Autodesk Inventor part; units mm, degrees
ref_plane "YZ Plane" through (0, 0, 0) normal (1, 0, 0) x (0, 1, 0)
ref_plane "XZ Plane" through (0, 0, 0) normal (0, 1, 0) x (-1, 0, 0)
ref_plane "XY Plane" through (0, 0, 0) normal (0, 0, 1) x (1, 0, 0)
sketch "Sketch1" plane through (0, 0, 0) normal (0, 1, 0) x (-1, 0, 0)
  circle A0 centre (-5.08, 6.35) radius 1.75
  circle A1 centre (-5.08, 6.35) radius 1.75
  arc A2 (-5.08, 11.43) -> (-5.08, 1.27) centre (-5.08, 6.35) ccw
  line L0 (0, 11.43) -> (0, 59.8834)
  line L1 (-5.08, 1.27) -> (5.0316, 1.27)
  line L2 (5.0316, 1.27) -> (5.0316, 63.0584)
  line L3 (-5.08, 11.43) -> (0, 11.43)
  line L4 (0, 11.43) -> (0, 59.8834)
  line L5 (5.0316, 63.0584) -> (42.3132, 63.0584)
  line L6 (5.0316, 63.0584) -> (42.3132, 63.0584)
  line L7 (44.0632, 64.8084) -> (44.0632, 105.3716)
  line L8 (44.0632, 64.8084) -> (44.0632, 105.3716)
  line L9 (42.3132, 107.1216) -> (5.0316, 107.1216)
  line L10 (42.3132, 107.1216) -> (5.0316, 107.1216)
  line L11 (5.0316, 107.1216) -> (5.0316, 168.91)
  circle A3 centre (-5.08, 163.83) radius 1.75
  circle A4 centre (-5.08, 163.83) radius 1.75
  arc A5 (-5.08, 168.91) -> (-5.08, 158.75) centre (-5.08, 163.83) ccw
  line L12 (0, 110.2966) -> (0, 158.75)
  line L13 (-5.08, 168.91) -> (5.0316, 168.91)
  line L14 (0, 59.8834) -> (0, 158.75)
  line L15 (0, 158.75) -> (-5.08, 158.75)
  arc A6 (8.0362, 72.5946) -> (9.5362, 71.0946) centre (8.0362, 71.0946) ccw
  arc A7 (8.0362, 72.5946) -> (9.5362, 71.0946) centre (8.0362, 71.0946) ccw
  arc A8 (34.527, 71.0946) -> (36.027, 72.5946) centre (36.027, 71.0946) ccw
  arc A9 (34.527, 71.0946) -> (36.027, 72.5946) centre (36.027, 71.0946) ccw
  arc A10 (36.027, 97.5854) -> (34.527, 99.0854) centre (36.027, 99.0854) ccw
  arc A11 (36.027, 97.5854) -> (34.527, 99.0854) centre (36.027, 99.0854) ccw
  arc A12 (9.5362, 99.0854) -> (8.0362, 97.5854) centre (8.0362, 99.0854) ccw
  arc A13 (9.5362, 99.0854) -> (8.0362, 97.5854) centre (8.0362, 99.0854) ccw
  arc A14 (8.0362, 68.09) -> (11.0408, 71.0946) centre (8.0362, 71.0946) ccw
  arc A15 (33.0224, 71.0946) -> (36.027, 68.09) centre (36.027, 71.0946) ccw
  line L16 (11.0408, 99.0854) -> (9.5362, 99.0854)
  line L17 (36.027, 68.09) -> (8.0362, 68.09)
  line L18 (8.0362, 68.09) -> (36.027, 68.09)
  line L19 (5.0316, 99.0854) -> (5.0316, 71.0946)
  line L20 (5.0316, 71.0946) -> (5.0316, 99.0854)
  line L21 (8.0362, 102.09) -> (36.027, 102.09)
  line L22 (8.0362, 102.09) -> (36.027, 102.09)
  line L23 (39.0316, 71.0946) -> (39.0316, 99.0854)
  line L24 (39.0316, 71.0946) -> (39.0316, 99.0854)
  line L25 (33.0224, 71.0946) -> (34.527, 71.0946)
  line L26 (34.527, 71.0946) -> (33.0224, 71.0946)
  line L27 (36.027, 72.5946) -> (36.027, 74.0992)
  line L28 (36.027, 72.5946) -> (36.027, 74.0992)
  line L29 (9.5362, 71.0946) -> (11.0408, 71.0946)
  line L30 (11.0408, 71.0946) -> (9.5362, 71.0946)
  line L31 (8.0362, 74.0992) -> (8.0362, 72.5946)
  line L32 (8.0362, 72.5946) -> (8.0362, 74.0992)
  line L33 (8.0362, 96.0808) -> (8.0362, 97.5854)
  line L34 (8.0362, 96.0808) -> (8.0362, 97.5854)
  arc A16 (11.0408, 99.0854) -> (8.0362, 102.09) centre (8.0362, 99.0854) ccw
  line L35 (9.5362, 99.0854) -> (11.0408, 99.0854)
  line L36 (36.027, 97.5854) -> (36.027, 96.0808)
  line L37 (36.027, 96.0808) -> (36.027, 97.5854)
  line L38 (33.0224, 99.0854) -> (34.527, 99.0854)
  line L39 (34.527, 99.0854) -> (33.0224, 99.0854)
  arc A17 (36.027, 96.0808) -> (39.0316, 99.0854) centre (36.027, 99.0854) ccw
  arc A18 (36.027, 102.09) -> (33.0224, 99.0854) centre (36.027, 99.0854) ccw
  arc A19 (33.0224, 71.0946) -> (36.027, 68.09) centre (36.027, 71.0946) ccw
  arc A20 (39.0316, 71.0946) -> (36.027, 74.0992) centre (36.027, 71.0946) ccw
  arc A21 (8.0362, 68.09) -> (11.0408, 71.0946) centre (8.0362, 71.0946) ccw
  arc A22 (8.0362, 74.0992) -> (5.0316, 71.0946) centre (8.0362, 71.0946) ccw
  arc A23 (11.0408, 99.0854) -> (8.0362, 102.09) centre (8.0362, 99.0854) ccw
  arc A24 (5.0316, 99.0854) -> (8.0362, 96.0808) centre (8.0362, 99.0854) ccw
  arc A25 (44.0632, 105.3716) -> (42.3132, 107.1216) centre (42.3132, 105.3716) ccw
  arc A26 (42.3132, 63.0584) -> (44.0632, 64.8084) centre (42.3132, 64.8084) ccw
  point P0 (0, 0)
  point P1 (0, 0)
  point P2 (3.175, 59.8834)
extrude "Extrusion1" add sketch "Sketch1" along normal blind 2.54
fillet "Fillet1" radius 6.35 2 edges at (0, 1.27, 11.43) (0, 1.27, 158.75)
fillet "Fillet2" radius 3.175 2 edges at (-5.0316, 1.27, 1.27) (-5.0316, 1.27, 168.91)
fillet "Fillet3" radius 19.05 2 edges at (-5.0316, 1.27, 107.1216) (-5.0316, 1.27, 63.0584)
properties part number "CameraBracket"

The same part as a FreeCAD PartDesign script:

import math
import FreeCAD as App
import Part
import Sketcher

V = App.Vector
Q = App.Units.Quantity


def edges_at(feature, points):
    """Names of the edges that pass closest to the given points."""
    edges = feature.Shape.Edges
    near = lambda p: min(range(len(edges)), key=lambda i: edges[i].distToShape(Part.Vertex(*p))[0])
    return sorted({f"Edge{near(p) + 1}" for p in points})

doc = App.newDocument("Part")
body = doc.addObject("PartDesign::Body", "Body")

# Sketch on XZ plane
sketch1 = doc.addObject("Sketcher::SketchObject", "Sketch")
body.addObject(sketch1)
sketch1.AttachmentSupport = (doc.XZ_Plane, [""])
sketch1.MapMode = "FlatFace"
sketch1.addGeometry([
    Part.LineSegment(V(0, 11.4, 0), V(5.1, 11.4, 0)),  # 0
    Part.ArcOfCircle(Part.Circle(V(5.1, 6.3, 0), V(0, 0, 1), 5.1), math.radians(-90), math.radians(90)),  # 1
    Part.LineSegment(V(5.1, 1.3, 0), V(-5, 1.3, 0)),  # 2
    Part.LineSegment(V(-5, 1.3, 0), V(-5, 63.1, 0)),  # 3
    Part.LineSegment(V(-5, 63.1, 0), V(-42.3, 63.1, 0)),  # 4
    Part.ArcOfCircle(Part.Circle(V(-42.3, 64.8, 0), V(0, 0, 1), 1.8), math.radians(180), math.radians(270)),  # 5
    Part.LineSegment(V(-44.1, 64.8, 0), V(-44.1, 105.4, 0)),  # 6
    Part.ArcOfCircle(Part.Circle(V(-42.3, 105.4, 0), V(0, 0, 1), 1.8), math.radians(90), math.radians(180)),  # 7
    Part.LineSegment(V(-42.3, 107.1, 0), V(-5, 107.1, 0)),  # 8
    Part.LineSegment(V(-5, 107.1, 0), V(-5, 168.9, 0)),  # 9
    Part.LineSegment(V(-5, 168.9, 0), V(5.1, 168.9, 0)),  # 10
    Part.ArcOfCircle(Part.Circle(V(5.1, 163.8, 0), V(0, 0, 1), 5.1), math.radians(-90), math.radians(90)),  # 11
    Part.LineSegment(V(5.1, 158.8, 0), V(0, 158.8, 0)),  # 12
    Part.LineSegment(V(0, 158.8, 0), V(0, 11.4, 0)),  # 13
    Part.Circle(V(5.1, 6.3, 0), V(0, 0, 1), 1.8),  # 14
    Part.Circle(V(5.1, 163.8, 0), V(0, 0, 1), 1.8),  # 15
    Part.ArcOfCircle(Part.Circle(V(-8, 71.1, 0), V(0, 0, 1), 1.5), math.radians(180), math.radians(450)),  # 16
    Part.LineSegment(V(-8, 72.6, 0), V(-8, 74.1, 0)),  # 17
    Part.ArcOfCircle(Part.Circle(V(-8, 71.1, 0), V(0, 0, 1), 3), math.radians(0), math.radians(90)),  # 18
    Part.LineSegment(V(-5, 71.1, 0), V(-5, 99.1, 0)),  # 19
    Part.ArcOfCircle(Part.Circle(V(-8, 99.1, 0), V(0, 0, 1), 3), math.radians(-90), math.radians(0)),  # 20
    Part.LineSegment(V(-8, 96.1, 0), V(-8, 97.6, 0)),  # 21
    Part.ArcOfCircle(Part.Circle(V(-8, 99.1, 0), V(0, 0, 1), 1.5), math.radians(-90), math.radians(180)),  # 22
    Part.LineSegment(V(-9.5, 99.1, 0), V(-11, 99.1, 0)),  # 23
    Part.ArcOfCircle(Part.Circle(V(-8, 99.1, 0), V(0, 0, 1), 3), math.radians(90), math.radians(180)),  # 24
    Part.LineSegment(V(-8, 102.1, 0), V(-36, 102.1, 0)),  # 25
    Part.ArcOfCircle(Part.Circle(V(-36, 99.1, 0), V(0, 0, 1), 3), math.radians(0), math.radians(90)),  # 26
    Part.LineSegment(V(-33, 99.1, 0), V(-34.5, 99.1, 0)),  # 27
    Part.ArcOfCircle(Part.Circle(V(-36, 99.1, 0), V(0, 0, 1), 1.5), math.radians(0), math.radians(270)),  # 28
    Part.LineSegment(V(-36, 97.6, 0), V(-36, 96.1, 0)),  # 29
    Part.ArcOfCircle(Part.Circle(V(-36, 99.1, 0), V(0, 0, 1), 3), math.radians(180), math.radians(270)),  # 30
    Part.LineSegment(V(-39, 99.1, 0), V(-39, 71.1, 0)),  # 31
    Part.ArcOfCircle(Part.Circle(V(-36, 71.1, 0), V(0, 0, 1), 3), math.radians(90), math.radians(180)),  # 32
    Part.LineSegment(V(-36, 74.1, 0), V(-36, 72.6, 0)),  # 33
    Part.ArcOfCircle(Part.Circle(V(-36, 71.1, 0), V(0, 0, 1), 1.5), math.radians(90), math.radians(360)),  # 34
    Part.LineSegment(V(-34.5, 71.1, 0), V(-33, 71.1, 0)),  # 35
    Part.ArcOfCircle(Part.Circle(V(-36, 71.1, 0), V(0, 0, 1), 3), math.radians(-90), math.radians(0)),  # 36
    Part.LineSegment(V(-36, 68.1, 0), V(-8, 68.1, 0)),  # 37
    Part.ArcOfCircle(Part.Circle(V(-8, 71.1, 0), V(0, 0, 1), 3), math.radians(180), math.radians(270)),  # 38
    Part.LineSegment(V(-11, 71.1, 0), V(-9.5, 71.1, 0)),  # 39
], False)
sketch1.addConstraint([
    Sketcher.Constraint("Tangent", 0, 2, 1, 2),
    Sketcher.Constraint("Tangent", 1, 1, 2, 1),
    Sketcher.Constraint("Coincident", 2, 2, 3, 1),
    Sketcher.Constraint("Coincident", 3, 2, 4, 1),
    Sketcher.Constraint("Tangent", 4, 2, 5, 2),
    Sketcher.Constraint("Tangent", 5, 1, 6, 1),
    Sketcher.Constraint("Tangent", 6, 2, 7, 2),
    Sketcher.Constraint("Tangent", 7, 1, 8, 1),
    Sketcher.Constraint("Coincident", 8, 2, 9, 1),
    Sketcher.Constraint("Coincident", 9, 2, 10, 1),
    Sketcher.Constraint("Tangent", 10, 2, 11, 2),
    Sketcher.Constraint("Tangent", 11, 1, 12, 1),
    Sketcher.Constraint("Coincident", 12, 2, 13, 1),
    Sketcher.Constraint("Coincident", 13, 2, 0, 1),
    Sketcher.Constraint("Coincident", 16, 2, 17, 1),
    Sketcher.Constraint("Coincident", 17, 2, 18, 2),
    Sketcher.Constraint("Tangent", 18, 1, 19, 1),
    Sketcher.Constraint("Tangent", 19, 2, 20, 2),
    Sketcher.Constraint("Coincident", 20, 1, 21, 1),
    Sketcher.Constraint("Coincident", 21, 2, 22, 1),
    Sketcher.Constraint("Coincident", 22, 2, 23, 1),
    Sketcher.Constraint("Coincident", 23, 2, 24, 2),
    Sketcher.Constraint("Tangent", 24, 1, 25, 1),
    Sketcher.Constraint("Tangent", 25, 2, 26, 2),
    Sketcher.Constraint("Coincident", 26, 1, 27, 1),
    Sketcher.Constraint("Coincident", 27, 2, 28, 1),
    Sketcher.Constraint("Coincident", 28, 2, 29, 1),
    Sketcher.Constraint("Coincident", 29, 2, 30, 2),
    Sketcher.Constraint("Tangent", 30, 1, 31, 1),
    Sketcher.Constraint("Tangent", 31, 2, 32, 2),
    Sketcher.Constraint("Coincident", 32, 1, 33, 1),
    Sketcher.Constraint("Coincident", 33, 2, 34, 1),
    Sketcher.Constraint("Coincident", 34, 2, 35, 1),
    Sketcher.Constraint("Coincident", 35, 2, 36, 2),
    Sketcher.Constraint("Tangent", 36, 1, 37, 1),
    Sketcher.Constraint("Tangent", 37, 2, 38, 2),
    Sketcher.Constraint("Coincident", 38, 1, 39, 1),
    Sketcher.Constraint("Coincident", 39, 2, 16, 1),
    Sketcher.Constraint("Horizontal", 0),
    Sketcher.Constraint("Horizontal", 2),
    Sketcher.Constraint("Vertical", 3),
    Sketcher.Constraint("Horizontal", 4),
    Sketcher.Constraint("Vertical", 6),
    Sketcher.Constraint("Horizontal", 8),
    Sketcher.Constraint("Vertical", 9),
    Sketcher.Constraint("Horizontal", 10),
    Sketcher.Constraint("Horizontal", 12),
    Sketcher.Constraint("Vertical", 13),
    Sketcher.Constraint("Vertical", 17),
    Sketcher.Constraint("Vertical", 19),
    Sketcher.Constraint("Vertical", 21),
    Sketcher.Constraint("Horizontal", 23),
    Sketcher.Constraint("Horizontal", 25),
    Sketcher.Constraint("Horizontal", 27),
    Sketcher.Constraint("Vertical", 29),
    Sketcher.Constraint("Vertical", 31),
    Sketcher.Constraint("Vertical", 33),
    Sketcher.Constraint("Horizontal", 35),
    Sketcher.Constraint("Horizontal", 37),
    Sketcher.Constraint("Horizontal", 39),
    Sketcher.Constraint("Coincident", 14, 3, 1, 3),
    Sketcher.Constraint("Coincident", 15, 3, 11, 3),
    Sketcher.Constraint("Coincident", 18, 3, 16, 3),
    Sketcher.Constraint("Coincident", 22, 3, 20, 3),
    Sketcher.Constraint("Coincident", 24, 3, 20, 3),
    Sketcher.Constraint("Coincident", 28, 3, 26, 3),
    Sketcher.Constraint("Coincident", 30, 3, 26, 3),
    Sketcher.Constraint("Coincident", 34, 3, 32, 3),
    Sketcher.Constraint("Coincident", 36, 3, 32, 3),
    Sketcher.Constraint("Coincident", 38, 3, 16, 3),
    Sketcher.Constraint("Equal", 5, 7),
    Sketcher.Constraint("Equal", 1, 11),
    Sketcher.Constraint("Equal", 7, 14),
    Sketcher.Constraint("Equal", 14, 15),
    Sketcher.Constraint("Equal", 18, 20),
    Sketcher.Constraint("Equal", 16, 22),
    Sketcher.Constraint("Equal", 20, 24),
    Sketcher.Constraint("Equal", 24, 26),
    Sketcher.Constraint("Equal", 22, 28),
    Sketcher.Constraint("Equal", 26, 30),
    Sketcher.Constraint("Equal", 30, 32),
    Sketcher.Constraint("Equal", 28, 34),
    Sketcher.Constraint("Equal", 32, 36),
    Sketcher.Constraint("Equal", 36, 38),
    Sketcher.Constraint("PointOnObject", 12, 2, -2),
    Sketcher.Constraint("Horizontal", 19, 2, 22, 2),
    Sketcher.Constraint("Horizontal", 23, 2, 26, 1),
    Sketcher.Constraint("Horizontal", 31, 2, 34, 2),
    Sketcher.Constraint("Horizontal", 35, 2, 38, 1),
    Sketcher.Constraint("Vertical", 1, 3, 11, 3),
    Sketcher.Constraint("Vertical", 3, 2, 8, 2),
    Sketcher.Constraint("Vertical", 38, 3, 16, 2),
    Sketcher.Constraint("Vertical", 9, 2, 18, 1),
    Sketcher.Constraint("Vertical", 17, 2, 20, 1),
    Sketcher.Constraint("Vertical", 25, 2, 28, 2),
    Sketcher.Constraint("Vertical", 29, 2, 32, 1),
    Sketcher.Constraint("Equal", 3, 9),
    Sketcher.Constraint("Equal", 37, 19),
    Sketcher.Constraint("Radius", 1, Q("0.2 in")),
    Sketcher.Constraint("DistanceX", 0, 1, 0, 2, Q("0.2 in")),
    Sketcher.Constraint("DistanceY", 13, 2, 13, 1, Q("5.8 in")),
    Sketcher.Constraint("Diameter", 14, Q("0.1378 in")),
    Sketcher.Constraint("Radius", 18, Q("0.1183 in")),
    Sketcher.Constraint("DistanceX", 25, 2, 25, 1, Q("1.102 in")),
    Sketcher.Constraint("DistanceY", -1, 1, 1, 3, Q("0.25 in")),
    Sketcher.Constraint("Radius", 16, 1.5),
    Sketcher.Constraint("DistanceX", 2, 2, 2, 1, Q("0.3981 in")),
    Sketcher.Constraint("DistanceY", -1, 1, 16, 3, Q("2.799 in")),
    Sketcher.Constraint("DistanceX", 4, 2, 4, 1, 37.2816),
    Sketcher.Constraint("DistanceY", 3, 1, 3, 2, 61.7884),
])
pad1 = doc.addObject("PartDesign::Pad", "Pad")
body.addObject(pad1)
pad1.Profile = sketch1
pad1.Length = Q("0.1 in")
pad1.Reversed = True
doc.recompute()

fillet = doc.addObject("PartDesign::Fillet", "Fillet")
body.addObject(fillet)
fillet.Base = (pad1, edges_at(pad1, [(0, 1.27, 11.43), (0, 1.27, 158.75)]))
fillet.Radius = Q("0.25 in")
doc.recompute()

fillet2 = doc.addObject("PartDesign::Fillet", "Fillet001")
body.addObject(fillet2)
fillet2.Base = (fillet, edges_at(fillet, [(-5.032, 1.27, 1.27), (-5.032, 1.27, 168.91)]))
fillet2.Radius = Q("0.125 in")
doc.recompute()

fillet3 = doc.addObject("PartDesign::Fillet", "Fillet002")
body.addObject(fillet3)
fillet3.Base = (fillet2, edges_at(fillet2, [(-5.032, 1.27, 107.122), (-5.032, 1.27, 63.058)]))
fillet3.Radius = Q("0.75 in")

doc.recompute()
